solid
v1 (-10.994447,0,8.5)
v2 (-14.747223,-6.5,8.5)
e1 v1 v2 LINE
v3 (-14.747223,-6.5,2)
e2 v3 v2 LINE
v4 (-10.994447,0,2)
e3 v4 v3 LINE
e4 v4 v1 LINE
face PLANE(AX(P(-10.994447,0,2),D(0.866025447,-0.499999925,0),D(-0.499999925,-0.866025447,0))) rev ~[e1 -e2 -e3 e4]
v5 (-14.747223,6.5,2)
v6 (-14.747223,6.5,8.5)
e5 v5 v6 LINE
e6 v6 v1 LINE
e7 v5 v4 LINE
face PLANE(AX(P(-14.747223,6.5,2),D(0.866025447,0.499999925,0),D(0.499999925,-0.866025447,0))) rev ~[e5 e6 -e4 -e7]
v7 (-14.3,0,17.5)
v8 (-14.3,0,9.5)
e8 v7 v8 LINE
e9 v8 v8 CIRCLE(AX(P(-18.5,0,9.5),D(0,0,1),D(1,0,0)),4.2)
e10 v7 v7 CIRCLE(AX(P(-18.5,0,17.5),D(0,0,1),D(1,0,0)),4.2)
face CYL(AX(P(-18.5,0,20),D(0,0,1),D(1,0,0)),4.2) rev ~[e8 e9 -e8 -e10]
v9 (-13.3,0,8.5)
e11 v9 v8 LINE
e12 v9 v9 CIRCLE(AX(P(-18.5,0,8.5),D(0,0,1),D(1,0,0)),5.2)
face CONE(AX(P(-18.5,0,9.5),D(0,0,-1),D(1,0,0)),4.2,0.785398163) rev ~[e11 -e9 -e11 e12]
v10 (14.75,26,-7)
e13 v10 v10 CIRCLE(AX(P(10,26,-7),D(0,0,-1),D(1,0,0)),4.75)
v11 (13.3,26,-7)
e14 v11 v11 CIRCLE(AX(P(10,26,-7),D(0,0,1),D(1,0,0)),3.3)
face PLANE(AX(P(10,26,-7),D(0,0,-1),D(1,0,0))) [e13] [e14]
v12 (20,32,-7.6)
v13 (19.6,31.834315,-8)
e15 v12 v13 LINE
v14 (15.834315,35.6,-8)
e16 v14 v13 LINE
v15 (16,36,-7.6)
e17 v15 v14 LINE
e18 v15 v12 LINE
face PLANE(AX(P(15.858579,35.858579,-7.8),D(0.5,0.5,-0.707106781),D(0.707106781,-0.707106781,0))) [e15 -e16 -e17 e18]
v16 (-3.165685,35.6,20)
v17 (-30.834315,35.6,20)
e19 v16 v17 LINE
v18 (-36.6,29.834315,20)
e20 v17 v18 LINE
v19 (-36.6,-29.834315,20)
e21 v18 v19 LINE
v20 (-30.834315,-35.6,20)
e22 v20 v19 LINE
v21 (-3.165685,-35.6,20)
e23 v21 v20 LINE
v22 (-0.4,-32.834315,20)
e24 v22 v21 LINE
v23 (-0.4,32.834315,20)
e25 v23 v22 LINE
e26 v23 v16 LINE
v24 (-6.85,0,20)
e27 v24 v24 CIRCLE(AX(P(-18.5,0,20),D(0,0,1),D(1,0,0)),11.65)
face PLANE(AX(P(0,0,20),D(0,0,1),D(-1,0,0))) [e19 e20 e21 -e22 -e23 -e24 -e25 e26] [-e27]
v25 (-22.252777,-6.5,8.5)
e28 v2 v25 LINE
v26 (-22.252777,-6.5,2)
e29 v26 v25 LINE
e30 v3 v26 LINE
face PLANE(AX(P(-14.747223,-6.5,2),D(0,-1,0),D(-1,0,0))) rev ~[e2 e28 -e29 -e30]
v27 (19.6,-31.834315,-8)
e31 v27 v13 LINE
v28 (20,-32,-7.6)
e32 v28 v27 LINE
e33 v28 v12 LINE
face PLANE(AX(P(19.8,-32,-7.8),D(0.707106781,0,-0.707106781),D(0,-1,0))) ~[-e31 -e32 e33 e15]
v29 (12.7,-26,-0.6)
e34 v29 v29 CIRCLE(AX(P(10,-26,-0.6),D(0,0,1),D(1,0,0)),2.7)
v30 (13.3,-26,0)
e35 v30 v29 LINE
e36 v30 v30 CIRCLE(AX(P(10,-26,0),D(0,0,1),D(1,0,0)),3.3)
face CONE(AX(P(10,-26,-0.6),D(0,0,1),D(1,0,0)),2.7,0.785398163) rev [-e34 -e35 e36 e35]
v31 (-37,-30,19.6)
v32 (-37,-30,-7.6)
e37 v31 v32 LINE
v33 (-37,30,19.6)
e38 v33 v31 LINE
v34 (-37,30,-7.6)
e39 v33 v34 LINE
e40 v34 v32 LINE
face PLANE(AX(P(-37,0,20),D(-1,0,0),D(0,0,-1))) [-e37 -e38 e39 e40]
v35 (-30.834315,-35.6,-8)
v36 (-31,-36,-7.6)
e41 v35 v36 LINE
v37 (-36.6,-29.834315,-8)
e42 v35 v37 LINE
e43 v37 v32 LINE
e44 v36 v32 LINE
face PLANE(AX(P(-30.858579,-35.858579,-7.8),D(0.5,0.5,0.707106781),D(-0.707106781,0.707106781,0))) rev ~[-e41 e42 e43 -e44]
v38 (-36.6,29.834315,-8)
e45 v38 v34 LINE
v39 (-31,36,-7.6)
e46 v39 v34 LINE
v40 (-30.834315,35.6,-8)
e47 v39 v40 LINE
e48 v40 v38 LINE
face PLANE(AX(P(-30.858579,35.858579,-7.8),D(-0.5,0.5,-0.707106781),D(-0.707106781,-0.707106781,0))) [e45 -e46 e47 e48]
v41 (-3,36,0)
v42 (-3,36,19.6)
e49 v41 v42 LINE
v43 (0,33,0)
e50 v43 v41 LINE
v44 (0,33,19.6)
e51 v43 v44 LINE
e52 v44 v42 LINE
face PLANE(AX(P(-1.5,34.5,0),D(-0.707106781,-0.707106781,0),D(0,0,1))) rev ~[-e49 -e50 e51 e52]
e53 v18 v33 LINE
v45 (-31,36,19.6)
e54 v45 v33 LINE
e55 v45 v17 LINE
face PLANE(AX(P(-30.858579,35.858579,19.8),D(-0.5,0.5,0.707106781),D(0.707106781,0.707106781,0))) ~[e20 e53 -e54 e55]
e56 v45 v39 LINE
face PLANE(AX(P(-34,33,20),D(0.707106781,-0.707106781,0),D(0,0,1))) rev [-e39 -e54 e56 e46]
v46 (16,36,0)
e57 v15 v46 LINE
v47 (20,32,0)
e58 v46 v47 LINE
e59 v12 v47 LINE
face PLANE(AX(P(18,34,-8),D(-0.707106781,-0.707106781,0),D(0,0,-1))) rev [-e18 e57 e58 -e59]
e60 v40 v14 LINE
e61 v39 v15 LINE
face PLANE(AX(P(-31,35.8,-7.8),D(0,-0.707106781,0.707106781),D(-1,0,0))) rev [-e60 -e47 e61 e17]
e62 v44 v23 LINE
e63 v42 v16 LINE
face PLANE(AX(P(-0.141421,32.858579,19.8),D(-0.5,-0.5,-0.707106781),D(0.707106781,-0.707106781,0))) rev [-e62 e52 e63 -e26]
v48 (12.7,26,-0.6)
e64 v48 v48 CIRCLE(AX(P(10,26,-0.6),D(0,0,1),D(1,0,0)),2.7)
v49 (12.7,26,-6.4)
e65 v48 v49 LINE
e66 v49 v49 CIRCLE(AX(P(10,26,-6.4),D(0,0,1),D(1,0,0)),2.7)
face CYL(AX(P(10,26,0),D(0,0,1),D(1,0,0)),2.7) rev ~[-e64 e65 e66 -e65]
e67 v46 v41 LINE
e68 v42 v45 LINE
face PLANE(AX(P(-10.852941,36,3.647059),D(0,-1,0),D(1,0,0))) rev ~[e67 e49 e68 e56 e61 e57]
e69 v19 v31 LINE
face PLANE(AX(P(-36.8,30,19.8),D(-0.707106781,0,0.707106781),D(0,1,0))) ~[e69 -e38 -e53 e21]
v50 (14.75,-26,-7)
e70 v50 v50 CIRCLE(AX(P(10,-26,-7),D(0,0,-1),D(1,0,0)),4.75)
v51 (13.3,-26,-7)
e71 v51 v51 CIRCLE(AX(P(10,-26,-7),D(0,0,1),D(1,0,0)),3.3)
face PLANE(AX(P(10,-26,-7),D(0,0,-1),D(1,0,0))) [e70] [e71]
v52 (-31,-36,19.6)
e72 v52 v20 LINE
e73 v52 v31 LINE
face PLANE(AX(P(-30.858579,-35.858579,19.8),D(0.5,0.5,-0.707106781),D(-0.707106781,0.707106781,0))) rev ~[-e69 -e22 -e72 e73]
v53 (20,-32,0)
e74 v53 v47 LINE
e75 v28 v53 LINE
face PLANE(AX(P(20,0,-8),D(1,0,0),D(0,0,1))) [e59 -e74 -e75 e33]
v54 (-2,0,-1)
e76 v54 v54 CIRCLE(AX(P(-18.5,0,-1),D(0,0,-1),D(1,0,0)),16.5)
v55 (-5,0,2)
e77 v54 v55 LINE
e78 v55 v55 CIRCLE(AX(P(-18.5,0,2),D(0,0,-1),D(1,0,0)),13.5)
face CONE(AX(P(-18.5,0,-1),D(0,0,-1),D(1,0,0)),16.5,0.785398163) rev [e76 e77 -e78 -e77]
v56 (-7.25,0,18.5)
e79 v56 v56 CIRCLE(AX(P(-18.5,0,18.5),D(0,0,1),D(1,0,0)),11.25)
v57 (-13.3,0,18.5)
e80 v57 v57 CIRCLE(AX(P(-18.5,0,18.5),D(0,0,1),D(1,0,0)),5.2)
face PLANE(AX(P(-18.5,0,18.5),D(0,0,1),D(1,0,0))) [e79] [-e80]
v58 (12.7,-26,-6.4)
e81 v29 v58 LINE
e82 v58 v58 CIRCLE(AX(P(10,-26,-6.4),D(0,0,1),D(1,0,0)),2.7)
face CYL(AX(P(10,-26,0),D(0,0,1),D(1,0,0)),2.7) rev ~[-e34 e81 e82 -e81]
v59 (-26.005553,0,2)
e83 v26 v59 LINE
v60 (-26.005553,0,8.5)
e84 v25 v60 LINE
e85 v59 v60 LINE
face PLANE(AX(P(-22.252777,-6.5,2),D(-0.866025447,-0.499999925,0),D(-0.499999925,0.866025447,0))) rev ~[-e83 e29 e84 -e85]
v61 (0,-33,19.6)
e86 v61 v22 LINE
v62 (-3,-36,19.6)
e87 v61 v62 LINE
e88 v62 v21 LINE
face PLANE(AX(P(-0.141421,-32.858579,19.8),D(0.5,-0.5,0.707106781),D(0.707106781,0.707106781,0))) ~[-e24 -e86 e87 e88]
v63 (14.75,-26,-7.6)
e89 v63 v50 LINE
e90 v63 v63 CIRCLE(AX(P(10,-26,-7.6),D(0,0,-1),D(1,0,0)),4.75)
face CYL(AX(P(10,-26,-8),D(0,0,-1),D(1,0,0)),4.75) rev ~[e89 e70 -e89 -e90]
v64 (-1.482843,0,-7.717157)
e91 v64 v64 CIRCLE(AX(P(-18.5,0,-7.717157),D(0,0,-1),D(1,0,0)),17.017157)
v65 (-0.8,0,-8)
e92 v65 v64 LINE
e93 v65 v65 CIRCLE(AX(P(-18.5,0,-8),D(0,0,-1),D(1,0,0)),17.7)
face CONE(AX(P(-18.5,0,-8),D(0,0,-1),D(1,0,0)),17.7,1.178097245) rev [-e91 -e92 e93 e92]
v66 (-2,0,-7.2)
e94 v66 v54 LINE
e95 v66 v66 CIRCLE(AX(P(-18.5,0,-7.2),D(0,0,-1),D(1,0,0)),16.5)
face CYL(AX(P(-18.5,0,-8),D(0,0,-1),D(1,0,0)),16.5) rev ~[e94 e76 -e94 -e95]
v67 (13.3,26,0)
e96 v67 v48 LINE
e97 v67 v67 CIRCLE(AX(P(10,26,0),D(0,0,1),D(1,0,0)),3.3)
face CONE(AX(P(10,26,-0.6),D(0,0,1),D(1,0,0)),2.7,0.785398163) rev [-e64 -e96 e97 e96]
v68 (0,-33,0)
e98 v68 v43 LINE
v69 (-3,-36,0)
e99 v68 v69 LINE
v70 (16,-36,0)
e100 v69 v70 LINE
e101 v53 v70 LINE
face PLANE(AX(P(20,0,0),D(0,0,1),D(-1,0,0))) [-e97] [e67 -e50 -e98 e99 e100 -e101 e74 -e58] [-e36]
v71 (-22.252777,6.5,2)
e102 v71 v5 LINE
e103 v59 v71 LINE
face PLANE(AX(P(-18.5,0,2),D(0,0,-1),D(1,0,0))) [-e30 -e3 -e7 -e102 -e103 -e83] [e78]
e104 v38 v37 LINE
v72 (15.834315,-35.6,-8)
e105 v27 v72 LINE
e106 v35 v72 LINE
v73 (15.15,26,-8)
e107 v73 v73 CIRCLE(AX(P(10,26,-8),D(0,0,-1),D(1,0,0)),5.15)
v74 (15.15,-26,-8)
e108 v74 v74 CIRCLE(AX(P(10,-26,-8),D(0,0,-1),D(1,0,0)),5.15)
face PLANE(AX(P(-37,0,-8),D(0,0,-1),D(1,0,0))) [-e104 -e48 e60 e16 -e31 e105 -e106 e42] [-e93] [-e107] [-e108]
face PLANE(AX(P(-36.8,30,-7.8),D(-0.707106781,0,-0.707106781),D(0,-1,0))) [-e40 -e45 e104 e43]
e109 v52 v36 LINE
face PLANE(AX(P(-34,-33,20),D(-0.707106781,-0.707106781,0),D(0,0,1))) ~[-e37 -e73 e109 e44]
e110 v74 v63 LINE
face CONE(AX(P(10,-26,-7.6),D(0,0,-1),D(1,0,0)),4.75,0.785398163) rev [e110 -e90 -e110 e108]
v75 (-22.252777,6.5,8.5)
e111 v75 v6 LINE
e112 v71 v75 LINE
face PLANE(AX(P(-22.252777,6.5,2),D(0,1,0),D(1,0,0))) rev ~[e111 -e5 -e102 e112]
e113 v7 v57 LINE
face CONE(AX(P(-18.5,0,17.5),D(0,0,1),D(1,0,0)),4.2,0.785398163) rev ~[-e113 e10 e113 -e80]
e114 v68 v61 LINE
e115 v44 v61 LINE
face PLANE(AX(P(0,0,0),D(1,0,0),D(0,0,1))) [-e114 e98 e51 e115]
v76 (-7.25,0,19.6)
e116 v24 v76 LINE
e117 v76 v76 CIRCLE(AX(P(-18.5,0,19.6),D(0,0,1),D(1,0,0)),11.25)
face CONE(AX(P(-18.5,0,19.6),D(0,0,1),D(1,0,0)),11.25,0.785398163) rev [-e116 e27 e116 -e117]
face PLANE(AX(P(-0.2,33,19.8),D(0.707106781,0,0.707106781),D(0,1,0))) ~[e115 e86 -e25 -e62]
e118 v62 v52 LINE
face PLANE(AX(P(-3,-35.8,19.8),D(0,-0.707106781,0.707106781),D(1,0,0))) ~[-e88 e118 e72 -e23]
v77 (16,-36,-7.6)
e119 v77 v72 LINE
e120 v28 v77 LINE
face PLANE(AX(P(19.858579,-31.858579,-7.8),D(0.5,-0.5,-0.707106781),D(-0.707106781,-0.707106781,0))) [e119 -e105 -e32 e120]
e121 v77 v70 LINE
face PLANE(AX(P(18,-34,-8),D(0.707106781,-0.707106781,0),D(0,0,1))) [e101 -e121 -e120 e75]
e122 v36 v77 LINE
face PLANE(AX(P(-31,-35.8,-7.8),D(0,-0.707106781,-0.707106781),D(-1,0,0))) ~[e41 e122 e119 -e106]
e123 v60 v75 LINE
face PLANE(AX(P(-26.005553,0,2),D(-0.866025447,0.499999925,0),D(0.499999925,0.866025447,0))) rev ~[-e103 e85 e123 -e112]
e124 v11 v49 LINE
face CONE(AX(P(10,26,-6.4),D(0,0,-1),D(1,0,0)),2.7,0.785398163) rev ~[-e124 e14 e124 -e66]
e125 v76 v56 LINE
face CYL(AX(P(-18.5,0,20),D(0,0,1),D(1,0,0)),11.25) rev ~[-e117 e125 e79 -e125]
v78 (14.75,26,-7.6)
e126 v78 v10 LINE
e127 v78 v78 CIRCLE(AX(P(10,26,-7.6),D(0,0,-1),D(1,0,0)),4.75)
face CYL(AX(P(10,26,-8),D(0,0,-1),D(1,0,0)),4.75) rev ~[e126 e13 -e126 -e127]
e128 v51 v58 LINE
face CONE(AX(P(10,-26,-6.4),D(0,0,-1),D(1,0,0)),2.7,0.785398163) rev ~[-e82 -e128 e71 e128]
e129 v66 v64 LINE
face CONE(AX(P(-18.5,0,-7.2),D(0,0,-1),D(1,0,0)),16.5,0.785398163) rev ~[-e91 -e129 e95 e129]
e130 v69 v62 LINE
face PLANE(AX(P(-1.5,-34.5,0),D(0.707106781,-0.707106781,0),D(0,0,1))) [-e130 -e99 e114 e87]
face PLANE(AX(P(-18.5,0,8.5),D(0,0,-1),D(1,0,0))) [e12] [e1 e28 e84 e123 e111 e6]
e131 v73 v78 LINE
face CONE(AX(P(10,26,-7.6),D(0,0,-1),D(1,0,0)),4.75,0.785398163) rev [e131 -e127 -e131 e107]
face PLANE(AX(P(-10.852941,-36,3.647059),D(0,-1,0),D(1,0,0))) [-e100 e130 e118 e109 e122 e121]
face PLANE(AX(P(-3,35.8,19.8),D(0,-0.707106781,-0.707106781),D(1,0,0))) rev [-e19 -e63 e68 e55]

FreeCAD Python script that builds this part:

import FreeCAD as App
import Part
import Sketcher
Q = App.Units.Quantity


def edges_at(feature, points):
    """Names of the edges that pass closest to the given points."""
    edges = feature.Shape.Edges
    near = lambda p: min(range(len(edges)), key=lambda i: edges[i].distToShape(Part.Vertex(*p))[0])
    return sorted({f"Edge{near(p) + 1}" for p in points})

doc = App.newDocument("Part")
body = doc.addObject("PartDesign::Body", "Body")

sketch1 = body.newObject("Sketcher::SketchObject", "Sketch")
sketch1.AttachmentSupport = (doc.getObject("XZ_Plane"), [""])
sketch1.MapMode = "FlatFace"
sketch1.addGeometry([
    Part.LineSegment(App.Vector(0, 0, 0), App.Vector(0, 20, 0)),
    Part.LineSegment(App.Vector(0, 20, 0), App.Vector(-37, 20, 0)),
    Part.LineSegment(App.Vector(-37, 20, 0), App.Vector(-37, -8, 0)),
    Part.LineSegment(App.Vector(-37, -8, 0), App.Vector(20, -8, 0)),
    Part.LineSegment(App.Vector(20, -8, 0), App.Vector(20, 0, 0)),
    Part.LineSegment(App.Vector(20, 0, 0), App.Vector(0, 0, 0)),
], False)
sketch1.addConstraint([
    Sketcher.Constraint("Coincident", 0, 2, 1, 1),
    Sketcher.Constraint("Coincident", 1, 2, 2, 1),
    Sketcher.Constraint("Coincident", 2, 2, 3, 1),
    Sketcher.Constraint("Coincident", 3, 2, 4, 1),
    Sketcher.Constraint("Coincident", 4, 2, 5, 1),
    Sketcher.Constraint("Coincident", 5, 2, 0, 1),
    Sketcher.Constraint("Vertical", 0),
    Sketcher.Constraint("Horizontal", 1),
    Sketcher.Constraint("Vertical", 2),
    Sketcher.Constraint("Horizontal", 3),
    Sketcher.Constraint("Vertical", 4),
    Sketcher.Constraint("Horizontal", 5),
    Sketcher.Constraint("Coincident", 5, 2, -1, 1),
    Sketcher.Constraint("Equal", 5, 0),
    Sketcher.Constraint("DistanceX", 1, 2, 1, 1, 37.0),
    Sketcher.Constraint("DistanceX", 3, 1, 3, 2, 57.0),
    Sketcher.Constraint("DistanceY", 2, 2, 2, 1, 28.0),
])
pad1 = body.newObject("PartDesign::Pad", "Pad")
pad1.Profile = sketch1
pad1.Length = 72
pad1.Midplane = True

sketch2 = body.newObject("Sketcher::SketchObject", "Sketch001")
sketch2.AttachmentSupport = (doc.getObject("XY_Plane"), [""])
sketch2.MapMode = "FlatFace"
sketch2.AttachmentOffset = App.Placement(App.Vector(0, 0, 20), App.Rotation())
sketch2.addGeometry(Part.Circle(App.Vector(-18.5, 0, 0), App.Vector(0, 0, 1), 4.2), False)
sketch2.addConstraint([
    Sketcher.Constraint("PointOnObject", 0, 3, -1),
    Sketcher.Constraint("Diameter", 0, 8.4),
    Sketcher.Constraint("DistanceX", 0, 3, -1, 1, 18.5),
])
pocket1 = body.newObject("PartDesign::Pocket", "Pocket")
pocket1.Profile = sketch2
pocket1.Type = "ThroughAll"

sketch3 = body.newObject("Sketcher::SketchObject", "Sketch002")
sketch3.AttachmentSupport = (doc.getObject("XY_Plane"), [""])
sketch3.MapMode = "FlatFace"
sketch3.AttachmentOffset = App.Placement(App.Vector(0, 0, -8), App.Rotation())
sketch3.addGeometry(Part.Circle(App.Vector(-18, 0, 0), App.Vector(0, 0, 1), 16), False)
sketch3.addConstraint([
    Sketcher.Constraint("PointOnObject", 0, 3, -1),
    Sketcher.Constraint("Diameter", 0, 33.0),
    Sketcher.Constraint("DistanceX", 0, 3, -1, 1, 18.5),
])
pocket2 = body.newObject("PartDesign::Pocket", "Pocket001")
pocket2.Profile = sketch3
pocket2.Length = 10
pocket2.Reversed = True

sketch4 = body.newObject("Sketcher::SketchObject", "Sketch003")
sketch4.AttachmentSupport = (doc.getObject("XY_Plane"), [""])
sketch4.MapMode = "FlatFace"
sketch4.AttachmentOffset = App.Placement(App.Vector(0, 0, 2), App.Rotation())
sketch4.addGeometry([
    Part.LineSegment(App.Vector(-11, 0, 0), App.Vector(-15, -6, 0)),
    Part.LineSegment(App.Vector(-15, -6, 0), App.Vector(-22, -6, 0)),
    Part.LineSegment(App.Vector(-22, -6, 0), App.Vector(-26, 0, 0)),
    Part.LineSegment(App.Vector(-26, 0, 0), App.Vector(-22, 6, 0)),
    Part.LineSegment(App.Vector(-22, 6, 0), App.Vector(-15, 6, 0)),
    Part.LineSegment(App.Vector(-15, 6, 0), App.Vector(-11, 0, 0)),
], False)
sketch4.addConstraint([
    Sketcher.Constraint("Coincident", 0, 2, 1, 1),
    Sketcher.Constraint("Coincident", 1, 2, 2, 1),
    Sketcher.Constraint("Coincident", 2, 2, 3, 1),
    Sketcher.Constraint("Coincident", 3, 2, 4, 1),
    Sketcher.Constraint("Coincident", 4, 2, 5, 1),
    Sketcher.Constraint("Coincident", 5, 2, 0, 1),
    Sketcher.Constraint("Horizontal", 1),
    Sketcher.Constraint("Horizontal", 4),
    Sketcher.Constraint("Symmetric", 1, 2, 3, 2, -1),
    Sketcher.Constraint("PointOnObject", 2, 2, -1),
    Sketcher.Constraint("PointOnObject", 5, 2, -1),
    Sketcher.Constraint("Parallel", 0, 3),
    Sketcher.Constraint("Parallel", 2, 5),
    Sketcher.Constraint("Angle", 0, Q("-119.999995 deg")),
    Sketcher.Constraint("DistanceY", 1, 2, 3, 2, 13.0),
    Sketcher.Constraint("DistanceX", 1, 2, 1, 1, 7.505554),
    Sketcher.Constraint("DistanceX", 0, 2, -1, 1, 14.747223),
])
pocket3 = body.newObject("PartDesign::Pocket", "Pocket002")
pocket3.Profile = sketch4
pocket3.Length = 6.5
pocket3.Reversed = True

sketch5 = body.newObject("Sketcher::SketchObject", "Sketch004")
sketch5.AttachmentSupport = (doc.getObject("XY_Plane"), [""])
sketch5.MapMode = "FlatFace"
sketch5.AttachmentOffset = App.Placement(App.Vector(0, 0, 20), App.Rotation())
sketch5.addGeometry(Part.Circle(App.Vector(-18, 0, 0), App.Vector(0, 0, 1), 11), False)
sketch5.addConstraint([
    Sketcher.Constraint("PointOnObject", 0, 3, -1),
    Sketcher.Constraint("Diameter", 0, 22.5),
    Sketcher.Constraint("DistanceX", 0, 3, -1, 1, 18.5),
])
pocket4 = body.newObject("PartDesign::Pocket", "Pocket003")
pocket4.Profile = sketch5
pocket4.Length = 1.5

sketch6 = body.newObject("Sketcher::SketchObject", "Sketch005")
sketch6.AttachmentSupport = (doc.getObject("XY_Plane"), [""])
sketch6.MapMode = "FlatFace"
sketch6.addGeometry([
    Part.Circle(App.Vector(10, -26, 0), App.Vector(0, 0, 1), 2.7),
    Part.Circle(App.Vector(10, 26, 0), App.Vector(0, 0, 1), 2.7),
], False)
sketch6.addConstraint([
    Sketcher.Constraint("Equal", 0, 1),
    Sketcher.Constraint("Symmetric", 0, 3, 1, 3, -1),
    Sketcher.Constraint("Diameter", 0, 5.4),
    Sketcher.Constraint("DistanceX", -1, 1, 0, 3, 10.0),
    Sketcher.Constraint("DistanceY", 0, 3, -1, 1, 26.0),
])
pocket5 = body.newObject("PartDesign::Pocket", "Pocket004")
pocket5.Profile = sketch6
pocket5.Length = 10

sketch7 = body.newObject("Sketcher::SketchObject", "Sketch006")
sketch7.AttachmentSupport = (doc.getObject("XY_Plane"), [""])
sketch7.MapMode = "FlatFace"
sketch7.AttachmentOffset = App.Placement(App.Vector(0, 0, -8), App.Rotation())
sketch7.addGeometry([
    Part.Circle(App.Vector(10, -26, 0), App.Vector(0, 0, 1), 4.8),
    Part.Circle(App.Vector(10, 26, 0), App.Vector(0, 0, 1), 4.8),
], False)
sketch7.addConstraint([
    Sketcher.Constraint("Equal", 0, 1),
    Sketcher.Constraint("Symmetric", 0, 3, 1, 3, -1),
    Sketcher.Constraint("Diameter", 0, 9.5),
    Sketcher.Constraint("DistanceX", -1, 1, 0, 3, 10.0),
    Sketcher.Constraint("DistanceY", 0, 3, -1, 1, 26.0),
])
pocket6 = body.newObject("PartDesign::Pocket", "Pocket005")
pocket6.Profile = sketch7
pocket6.Length = 1
pocket6.Reversed = True
doc.recompute()

chamfer = body.newObject("PartDesign::Chamfer", "Chamfer")
chamfer.Base = (pocket6, edges_at(pocket6, [(0, -36, 10), (0, 36, 10)]))
chamfer.Size = 3
doc.recompute()

chamfer2 = body.newObject("PartDesign::Chamfer", "Chamfer001")
chamfer2.Base = (chamfer, edges_at(chamfer, [(20, -36, -4), (20, 36, -4)]))
chamfer2.Size = 4
doc.recompute()

chamfer3 = body.newObject("PartDesign::Chamfer", "Chamfer002")
chamfer3.Base = (chamfer2, edges_at(chamfer2, [(-37, -36, 6), (-37, 36, 6)]))
chamfer3.Size = 6
doc.recompute()

chamfer4 = body.newObject("PartDesign::Chamfer", "Chamfer003")
chamfer4.Base = (chamfer3, edges_at(chamfer3, [(-35, 0, 2)]))
chamfer4.Size = 3
doc.recompute()

chamfer5 = body.newObject("PartDesign::Chamfer", "Chamfer004")
chamfer5.Base = (chamfer4, edges_at(chamfer4, [(-35, 0, -8)]))
chamfer5.Size = 0.8
doc.recompute()

chamfer6 = body.newObject("PartDesign::Chamfer", "Chamfer005")
chamfer6.Base = (chamfer5, edges_at(chamfer5, [(-22.7, 0, 18.5), (-22.7, 0, 8.5)]))
chamfer6.Size = 1
doc.recompute()

chamfer7 = body.newObject("PartDesign::Chamfer", "Chamfer006")
chamfer7.Base = (chamfer6, edges_at(chamfer6, [
    (7.3, 26, -7),
    (7.3, -26, -7),
    (7.3, -26, 0),
    (7.3, 26, 0),
]))
chamfer7.Size = 0.6
doc.recompute()

chamfer8 = body.newObject("PartDesign::Chamfer", "Chamfer007")
chamfer8.Base = (chamfer7, edges_at(chamfer7, [
    (-17, 36, 20),
    (-34, 33, 20),
    (-1.5, 34.5, 20),
    (-37, 0, 20),
    (0, 0, 20),
    (-34, -33, 20),
    (-1.5, -34.5, 20),
    (-17, -36, 20),
    (-29.75, 0, 20),
    (-35.8, 0, -8),
    (-7.5, 36, -8),
    (-34, 33, -8),
    (18, 34, -8),
    (-37, 0, -8),
    (20, 0, -8),
    (-34, -33, -8),
    (18, -34, -8),
    (-7.5, -36, -8),
    (5.25, -26, -8),
    (5.25, 26, -8),
]))
chamfer8.Size = 0.4

doc.recompute()
